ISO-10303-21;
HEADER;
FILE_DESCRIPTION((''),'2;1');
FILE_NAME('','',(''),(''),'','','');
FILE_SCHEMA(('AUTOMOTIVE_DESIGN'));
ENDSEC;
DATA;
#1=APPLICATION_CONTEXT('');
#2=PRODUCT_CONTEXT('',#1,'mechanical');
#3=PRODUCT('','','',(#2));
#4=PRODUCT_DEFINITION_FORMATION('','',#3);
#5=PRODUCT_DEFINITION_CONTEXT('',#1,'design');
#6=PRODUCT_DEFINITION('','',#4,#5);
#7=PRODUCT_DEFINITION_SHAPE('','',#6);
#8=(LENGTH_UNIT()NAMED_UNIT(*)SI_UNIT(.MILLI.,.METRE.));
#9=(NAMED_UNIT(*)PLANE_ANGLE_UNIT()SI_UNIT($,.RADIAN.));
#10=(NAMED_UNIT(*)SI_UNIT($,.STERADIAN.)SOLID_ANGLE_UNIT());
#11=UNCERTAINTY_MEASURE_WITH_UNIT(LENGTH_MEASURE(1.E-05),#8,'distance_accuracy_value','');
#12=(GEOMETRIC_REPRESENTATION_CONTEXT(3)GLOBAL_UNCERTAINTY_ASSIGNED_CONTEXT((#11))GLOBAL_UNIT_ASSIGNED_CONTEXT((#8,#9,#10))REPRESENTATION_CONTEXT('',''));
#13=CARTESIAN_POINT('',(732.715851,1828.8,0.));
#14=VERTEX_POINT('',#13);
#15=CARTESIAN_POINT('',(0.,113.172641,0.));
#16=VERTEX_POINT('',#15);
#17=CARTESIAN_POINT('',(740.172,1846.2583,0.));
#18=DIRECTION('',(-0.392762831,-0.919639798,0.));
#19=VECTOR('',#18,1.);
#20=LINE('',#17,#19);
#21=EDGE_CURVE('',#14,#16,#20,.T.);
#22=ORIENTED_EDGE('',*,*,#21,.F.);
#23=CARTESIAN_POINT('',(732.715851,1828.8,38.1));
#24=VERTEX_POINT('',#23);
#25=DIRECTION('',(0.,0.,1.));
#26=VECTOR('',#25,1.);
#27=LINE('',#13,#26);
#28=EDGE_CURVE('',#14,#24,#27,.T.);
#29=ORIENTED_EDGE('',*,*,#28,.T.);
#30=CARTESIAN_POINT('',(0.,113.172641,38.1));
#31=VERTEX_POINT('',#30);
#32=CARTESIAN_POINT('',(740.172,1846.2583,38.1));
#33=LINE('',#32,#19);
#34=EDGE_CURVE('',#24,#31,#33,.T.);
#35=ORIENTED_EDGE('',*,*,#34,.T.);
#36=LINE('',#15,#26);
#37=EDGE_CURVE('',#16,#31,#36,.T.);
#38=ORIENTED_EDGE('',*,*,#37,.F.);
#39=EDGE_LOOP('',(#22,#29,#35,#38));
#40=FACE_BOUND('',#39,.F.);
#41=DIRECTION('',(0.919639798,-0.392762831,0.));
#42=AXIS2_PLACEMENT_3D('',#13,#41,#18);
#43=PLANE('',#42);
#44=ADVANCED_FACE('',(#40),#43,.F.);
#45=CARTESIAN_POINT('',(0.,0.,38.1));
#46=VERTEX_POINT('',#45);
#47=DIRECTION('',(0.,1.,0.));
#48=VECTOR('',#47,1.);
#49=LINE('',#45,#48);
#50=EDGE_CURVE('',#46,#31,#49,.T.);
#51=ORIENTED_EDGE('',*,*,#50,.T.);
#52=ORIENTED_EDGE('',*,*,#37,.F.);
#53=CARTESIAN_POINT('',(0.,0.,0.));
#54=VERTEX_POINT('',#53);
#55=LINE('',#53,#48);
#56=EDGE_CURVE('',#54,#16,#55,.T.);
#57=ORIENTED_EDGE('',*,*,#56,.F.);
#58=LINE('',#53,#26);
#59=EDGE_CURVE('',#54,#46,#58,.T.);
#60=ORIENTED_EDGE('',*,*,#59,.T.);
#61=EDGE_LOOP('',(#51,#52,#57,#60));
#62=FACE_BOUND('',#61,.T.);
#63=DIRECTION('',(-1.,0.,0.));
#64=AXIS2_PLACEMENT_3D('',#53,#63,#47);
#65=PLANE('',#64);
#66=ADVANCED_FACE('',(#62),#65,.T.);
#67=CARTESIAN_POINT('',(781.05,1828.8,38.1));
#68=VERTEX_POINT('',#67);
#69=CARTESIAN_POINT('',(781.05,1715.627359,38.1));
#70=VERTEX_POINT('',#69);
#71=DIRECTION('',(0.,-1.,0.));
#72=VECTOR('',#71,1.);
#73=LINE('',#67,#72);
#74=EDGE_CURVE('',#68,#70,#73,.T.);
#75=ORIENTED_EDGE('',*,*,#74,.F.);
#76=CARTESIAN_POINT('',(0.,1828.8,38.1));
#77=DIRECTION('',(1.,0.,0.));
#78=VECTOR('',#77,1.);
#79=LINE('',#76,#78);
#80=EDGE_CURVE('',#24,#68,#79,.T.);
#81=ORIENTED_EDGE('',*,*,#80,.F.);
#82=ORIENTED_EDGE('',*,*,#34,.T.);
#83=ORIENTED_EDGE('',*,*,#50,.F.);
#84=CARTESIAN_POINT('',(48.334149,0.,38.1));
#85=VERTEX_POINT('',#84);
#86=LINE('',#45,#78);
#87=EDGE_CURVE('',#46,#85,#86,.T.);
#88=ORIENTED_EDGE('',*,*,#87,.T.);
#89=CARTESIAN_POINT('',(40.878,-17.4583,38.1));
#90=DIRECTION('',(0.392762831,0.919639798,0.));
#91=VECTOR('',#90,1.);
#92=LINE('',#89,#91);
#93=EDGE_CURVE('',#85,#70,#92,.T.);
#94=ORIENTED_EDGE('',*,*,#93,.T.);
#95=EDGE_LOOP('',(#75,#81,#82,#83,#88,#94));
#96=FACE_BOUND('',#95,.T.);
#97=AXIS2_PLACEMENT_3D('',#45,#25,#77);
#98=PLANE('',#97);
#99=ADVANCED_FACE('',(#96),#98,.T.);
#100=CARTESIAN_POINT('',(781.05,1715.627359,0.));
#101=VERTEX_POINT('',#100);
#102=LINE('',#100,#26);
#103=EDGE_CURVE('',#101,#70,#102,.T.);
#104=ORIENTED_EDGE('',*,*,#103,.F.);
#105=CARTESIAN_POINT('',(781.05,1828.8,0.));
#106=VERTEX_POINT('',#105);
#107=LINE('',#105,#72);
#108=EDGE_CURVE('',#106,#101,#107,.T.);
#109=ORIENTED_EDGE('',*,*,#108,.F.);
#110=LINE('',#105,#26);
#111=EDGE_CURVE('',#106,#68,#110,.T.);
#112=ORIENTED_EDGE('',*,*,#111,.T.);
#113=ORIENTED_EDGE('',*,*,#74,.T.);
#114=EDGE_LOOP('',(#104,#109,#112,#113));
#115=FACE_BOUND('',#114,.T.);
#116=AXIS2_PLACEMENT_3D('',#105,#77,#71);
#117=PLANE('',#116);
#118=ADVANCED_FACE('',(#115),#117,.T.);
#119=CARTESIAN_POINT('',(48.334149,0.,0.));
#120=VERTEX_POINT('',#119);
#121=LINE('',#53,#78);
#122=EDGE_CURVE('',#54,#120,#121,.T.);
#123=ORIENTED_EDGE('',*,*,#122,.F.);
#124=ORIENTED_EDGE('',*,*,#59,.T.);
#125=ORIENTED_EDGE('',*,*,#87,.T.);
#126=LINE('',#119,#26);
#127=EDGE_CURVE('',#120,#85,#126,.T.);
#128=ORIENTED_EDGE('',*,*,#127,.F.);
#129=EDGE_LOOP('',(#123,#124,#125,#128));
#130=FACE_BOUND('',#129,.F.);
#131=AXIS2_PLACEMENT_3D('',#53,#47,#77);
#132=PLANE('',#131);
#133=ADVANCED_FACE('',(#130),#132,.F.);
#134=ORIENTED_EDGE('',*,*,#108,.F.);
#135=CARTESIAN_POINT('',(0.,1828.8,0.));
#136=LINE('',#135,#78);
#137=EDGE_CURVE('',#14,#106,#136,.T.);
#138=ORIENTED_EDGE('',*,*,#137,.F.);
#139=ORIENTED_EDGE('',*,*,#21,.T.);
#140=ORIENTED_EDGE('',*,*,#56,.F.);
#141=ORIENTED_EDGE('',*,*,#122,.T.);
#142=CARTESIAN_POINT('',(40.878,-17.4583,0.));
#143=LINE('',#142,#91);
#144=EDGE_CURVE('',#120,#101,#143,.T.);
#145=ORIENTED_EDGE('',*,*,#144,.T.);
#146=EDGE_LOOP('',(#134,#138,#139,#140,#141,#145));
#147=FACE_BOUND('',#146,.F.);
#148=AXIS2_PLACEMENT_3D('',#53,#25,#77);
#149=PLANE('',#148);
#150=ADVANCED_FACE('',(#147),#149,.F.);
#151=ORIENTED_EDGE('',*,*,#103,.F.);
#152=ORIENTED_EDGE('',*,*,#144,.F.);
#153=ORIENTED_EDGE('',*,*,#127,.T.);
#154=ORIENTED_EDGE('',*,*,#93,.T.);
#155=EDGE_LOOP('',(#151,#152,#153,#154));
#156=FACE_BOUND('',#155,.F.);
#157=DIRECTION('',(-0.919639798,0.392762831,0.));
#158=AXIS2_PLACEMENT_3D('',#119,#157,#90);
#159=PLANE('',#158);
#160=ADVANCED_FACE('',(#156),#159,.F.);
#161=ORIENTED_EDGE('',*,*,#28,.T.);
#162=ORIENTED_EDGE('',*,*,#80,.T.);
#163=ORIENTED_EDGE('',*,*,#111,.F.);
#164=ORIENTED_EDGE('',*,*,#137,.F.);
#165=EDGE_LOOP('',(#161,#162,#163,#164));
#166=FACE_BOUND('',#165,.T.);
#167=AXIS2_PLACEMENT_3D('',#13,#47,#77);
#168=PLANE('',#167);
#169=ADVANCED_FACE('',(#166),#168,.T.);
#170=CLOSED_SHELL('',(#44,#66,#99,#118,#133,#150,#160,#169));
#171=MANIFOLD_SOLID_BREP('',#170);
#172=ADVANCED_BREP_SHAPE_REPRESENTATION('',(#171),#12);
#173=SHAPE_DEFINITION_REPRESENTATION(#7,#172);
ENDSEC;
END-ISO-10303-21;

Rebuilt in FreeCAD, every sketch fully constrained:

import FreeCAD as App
import Part
import Sketcher

V = App.Vector
Q = App.Units.Quantity


def add_polygon(sketch, points):
    """Adds a closed chain of lines whose ends are joined by coincident constraints."""
    first, n = sketch.GeometryCount, len(points)
    for a, b in zip(points, points[1:] + points[:1]):
        sketch.addGeometry(Part.LineSegment(App.Vector(*a, 0), App.Vector(*b, 0)), False)
    for i in range(n):
        sketch.addConstraint(Sketcher.Constraint("Coincident", first + i, 2, first + (i + 1) % n, 1))

doc = App.newDocument("Part")
body = doc.addObject("PartDesign::Body", "Body")

# Sketch on XY plane
sketch1 = doc.addObject("Sketcher::SketchObject", "Sketch")
body.addObject(sketch1)
sketch1.AttachmentSupport = (doc.XY_Plane, [""])
sketch1.MapMode = "FlatFace"
add_polygon(sketch1, [(781.05, 1715.627359), (781.05, 1828.8), (732.715851, 1828.8), (0, 113.172641), (0, 0), (48.334149, 0)])  # lines 0-5
sketch1.addConstraint([
    Sketcher.Constraint("Vertical", 0),
    Sketcher.Constraint("Horizontal", 1),
    Sketcher.Constraint("Vertical", 3),
    Sketcher.Constraint("Horizontal", 4),
    Sketcher.Constraint("Coincident", 3, 2, -1, 1),
    Sketcher.Constraint("Parallel", 2, 5),
    Sketcher.Constraint("Equal", 1, 4),
    Sketcher.Constraint("DistanceY", -1, 1, 0, 2, Q("72 in")),
    Sketcher.Constraint("DistanceX", -1, 1, 0, 2, Q("30.75 in")),
    Sketcher.Constraint("DistanceX", 1, 2, 1, 1, 48.3341),
    Sketcher.Constraint("DistanceY", 0, 1, 0, 2, 113.1726),
])
pad1 = doc.addObject("PartDesign::Pad", "Pad")
body.addObject(pad1)
pad1.Profile = sketch1
pad1.Length = Q("1.5 in")

doc.recompute()
